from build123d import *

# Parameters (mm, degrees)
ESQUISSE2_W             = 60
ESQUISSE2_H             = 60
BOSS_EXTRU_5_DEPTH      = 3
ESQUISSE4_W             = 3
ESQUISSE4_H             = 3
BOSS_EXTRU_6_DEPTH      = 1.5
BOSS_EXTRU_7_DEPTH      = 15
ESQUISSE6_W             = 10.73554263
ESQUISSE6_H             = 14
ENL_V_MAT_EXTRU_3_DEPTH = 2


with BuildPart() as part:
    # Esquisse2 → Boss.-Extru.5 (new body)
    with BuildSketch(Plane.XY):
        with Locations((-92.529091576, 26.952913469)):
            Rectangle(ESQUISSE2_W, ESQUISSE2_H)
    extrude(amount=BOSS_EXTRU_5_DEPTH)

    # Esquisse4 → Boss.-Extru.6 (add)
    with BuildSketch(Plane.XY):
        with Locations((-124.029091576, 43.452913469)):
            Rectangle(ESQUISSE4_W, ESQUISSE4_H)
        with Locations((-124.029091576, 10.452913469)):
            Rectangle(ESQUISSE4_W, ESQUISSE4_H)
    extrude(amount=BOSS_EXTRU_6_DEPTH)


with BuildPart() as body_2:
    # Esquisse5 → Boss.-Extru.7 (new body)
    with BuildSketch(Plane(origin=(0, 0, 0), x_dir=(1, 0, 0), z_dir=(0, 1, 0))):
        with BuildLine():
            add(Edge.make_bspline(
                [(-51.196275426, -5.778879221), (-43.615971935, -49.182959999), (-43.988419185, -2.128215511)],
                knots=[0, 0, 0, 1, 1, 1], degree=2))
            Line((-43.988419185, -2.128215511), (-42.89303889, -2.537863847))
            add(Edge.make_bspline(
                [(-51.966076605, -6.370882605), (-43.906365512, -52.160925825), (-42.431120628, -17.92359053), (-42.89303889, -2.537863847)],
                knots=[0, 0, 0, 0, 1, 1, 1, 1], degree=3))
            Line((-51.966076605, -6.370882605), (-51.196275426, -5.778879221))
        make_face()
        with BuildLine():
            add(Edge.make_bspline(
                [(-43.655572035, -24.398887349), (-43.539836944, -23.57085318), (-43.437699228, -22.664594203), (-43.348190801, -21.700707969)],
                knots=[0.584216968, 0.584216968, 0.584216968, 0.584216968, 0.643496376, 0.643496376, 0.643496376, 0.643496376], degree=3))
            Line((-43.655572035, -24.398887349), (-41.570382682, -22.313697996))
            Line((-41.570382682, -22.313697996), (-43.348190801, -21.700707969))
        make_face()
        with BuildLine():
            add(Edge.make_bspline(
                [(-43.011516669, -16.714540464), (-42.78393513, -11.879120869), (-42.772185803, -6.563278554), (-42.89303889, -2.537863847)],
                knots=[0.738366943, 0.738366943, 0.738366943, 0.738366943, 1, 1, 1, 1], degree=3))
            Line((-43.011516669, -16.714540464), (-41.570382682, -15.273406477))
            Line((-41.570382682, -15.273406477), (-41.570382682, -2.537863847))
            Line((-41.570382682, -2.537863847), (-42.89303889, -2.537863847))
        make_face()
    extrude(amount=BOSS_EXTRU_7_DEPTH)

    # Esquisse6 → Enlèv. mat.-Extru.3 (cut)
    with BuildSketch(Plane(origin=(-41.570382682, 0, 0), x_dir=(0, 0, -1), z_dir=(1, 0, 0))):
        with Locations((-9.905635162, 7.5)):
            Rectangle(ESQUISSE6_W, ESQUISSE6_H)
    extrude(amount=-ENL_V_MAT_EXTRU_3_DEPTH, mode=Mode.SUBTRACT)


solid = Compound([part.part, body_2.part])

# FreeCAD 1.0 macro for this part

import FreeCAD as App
import Part
import Sketcher
from FreeCAD import Vector
Q = App.Units.Quantity

doc = App.newDocument("Part")
body = doc.addObject("PartDesign::Body", "Body")

# Sketch on XY plane
sketch1 = body.newObject("Sketcher::SketchObject", "Sketch")
sketch1.AttachmentSupport = (doc.getObject("XY_Plane"), [""])
sketch1.MapMode = "FlatFace"
sketch1.addGeometry(Part.LineSegment(Vector(-122.529092, 56.952913, 0), Vector(-122.529092, -3.047087, 0)), False)
sketch1.addGeometry(Part.LineSegment(Vector(-122.529092, -3.047087, 0), Vector(-62.529092, -3.047087, 0)), False)
sketch1.addGeometry(Part.LineSegment(Vector(-62.529092, -3.047087, 0), Vector(-62.529092, 56.952913, 0)), False)
sketch1.addGeometry(Part.LineSegment(Vector(-62.529092, 56.952913, 0), Vector(-122.529092, 56.952913, 0)), False)
sketch1.addConstraint(Sketcher.Constraint("Coincident", 0, 2, 1, 1))
sketch1.addConstraint(Sketcher.Constraint("Coincident", 1, 2, 2, 1))
sketch1.addConstraint(Sketcher.Constraint("Coincident", 2, 2, 3, 1))
sketch1.addConstraint(Sketcher.Constraint("Coincident", 3, 2, 0, 1))
sketch1.addConstraint(Sketcher.Constraint("Vertical", 0))
sketch1.addConstraint(Sketcher.Constraint("Horizontal", 1))
sketch1.addConstraint(Sketcher.Constraint("Vertical", 2))
sketch1.addConstraint(Sketcher.Constraint("Horizontal", 3))
sketch1.addConstraint(Sketcher.Constraint("Equal", 3, 0))
sketch1.addConstraint(Sketcher.Constraint("DistanceX", 1, 1, 1, 2, Q("60 mm")))
sketch1.addConstraint(Sketcher.Constraint("DistanceX", 0, 2, -1, 1, Q("122.529092 mm")))
sketch1.addConstraint(Sketcher.Constraint("DistanceY", 0, 2, -1, 1, Q("3.047087 mm")))
pad1 = body.newObject("PartDesign::Pad", "Pad")
pad1.Profile = sketch1
pad1.Length = 3

# Sketch on XY plane
sketch2 = body.newObject("Sketcher::SketchObject", "Sketch001")
sketch2.AttachmentSupport = (doc.getObject("XY_Plane"), [""])
sketch2.MapMode = "FlatFace"
sketch2.addGeometry(Part.LineSegment(Vector(-125.529092, 44.952913, 0), Vector(-125.529092, 41.952913, 0)), False)
sketch2.addGeometry(Part.LineSegment(Vector(-125.529092, 41.952913, 0), Vector(-122.529092, 41.952913, 0)), False)
sketch2.addGeometry(Part.LineSegment(Vector(-122.529092, 41.952913, 0), Vector(-122.529092, 44.952913, 0)), False)
sketch2.addGeometry(Part.LineSegment(Vector(-122.529092, 44.952913, 0), Vector(-125.529092, 44.952913, 0)), False)
sketch2.addGeometry(Part.LineSegment(Vector(-125.529092, 11.952913, 0), Vector(-125.529092, 8.952913, 0)), False)
sketch2.addGeometry(Part.LineSegment(Vector(-125.529092, 8.952913, 0), Vector(-122.529092, 8.952913, 0)), False)
sketch2.addGeometry(Part.LineSegment(Vector(-122.529092, 8.952913, 0), Vector(-122.529092, 11.952913, 0)), False)
sketch2.addGeometry(Part.LineSegment(Vector(-122.529092, 11.952913, 0), Vector(-125.529092, 11.952913, 0)), False)
sketch2.addConstraint(Sketcher.Constraint("Coincident", 0, 2, 1, 1))
sketch2.addConstraint(Sketcher.Constraint("Coincident", 1, 2, 2, 1))
sketch2.addConstraint(Sketcher.Constraint("Coincident", 2, 2, 3, 1))
sketch2.addConstraint(Sketcher.Constraint("Coincident", 3, 2, 0, 1))
sketch2.addConstraint(Sketcher.Constraint("Coincident", 4, 2, 5, 1))
sketch2.addConstraint(Sketcher.Constraint("Coincident", 5, 2, 6, 1))
sketch2.addConstraint(Sketcher.Constraint("Coincident", 6, 2, 7, 1))
sketch2.addConstraint(Sketcher.Constraint("Coincident", 7, 2, 4, 1))
sketch2.addConstraint(Sketcher.Constraint("Vertical", 0))
sketch2.addConstraint(Sketcher.Constraint("Horizontal", 1))
sketch2.addConstraint(Sketcher.Constraint("Vertical", 2))
sketch2.addConstraint(Sketcher.Constraint("Horizontal", 3))
sketch2.addConstraint(Sketcher.Constraint("Vertical", 4))
sketch2.addConstraint(Sketcher.Constraint("Horizontal", 5))
sketch2.addConstraint(Sketcher.Constraint("Vertical", 6))
sketch2.addConstraint(Sketcher.Constraint("Horizontal", 7))
sketch2.addConstraint(Sketcher.Constraint("Vertical", 3, 2, 4, 2))
sketch2.addConstraint(Sketcher.Constraint("Vertical", 2, 2, 5, 2))
sketch2.addConstraint(Sketcher.Constraint("Equal", 7, 0))
sketch2.addConstraint(Sketcher.Constraint("Equal", 2, 4))
sketch2.addConstraint(Sketcher.Constraint("DistanceX", 1, 1, 1, 2, Q("3 mm")))
sketch2.addConstraint(Sketcher.Constraint("DistanceY", 4, 2, 0, 2, Q("33 mm")))
sketch2.addConstraint(Sketcher.Constraint("DistanceX", 0, 2, -1, 1, Q("125.529092 mm")))
sketch2.addConstraint(Sketcher.Constraint("DistanceY", -1, 1, 0, 2, Q("41.952913 mm")))
pad2 = body.newObject("PartDesign::Pad", "Pad001")
pad2.Profile = sketch2
pad2.Length = 1.5
body2 = doc.addObject("PartDesign::Body", "Body001")

# Sketch on XZ plane
sketch3 = body2.newObject("Sketcher::SketchObject", "Sketch002")
sketch3.AttachmentSupport = (doc.getObject("XZ_Plane001"), [""])
sketch3.MapMode = "FlatFace"
sketch3.addGeometry(Part.BSplineCurve([Vector(-51.196275, 5.778879, 0), Vector(-43.615972, 49.18296, 0), Vector(-43.988419, 2.128216, 0)], [3, 3], [0, 1], False, 2, [1, 1, 1], False), False)
sketch3.addGeometry(Part.LineSegment(Vector(-51.196275, 5.778879, 0), Vector(-51.966077, 6.370883, 0)), False)
sketch3.addGeometry(Part.BSplineCurve([Vector(-51.966077, 6.370883, 0), Vector(-47.257457, 33.122203, 0), Vector(-44.796177, 32.559421, 0), Vector(-43.655572, 24.398887, 0)], [4, 4], [0, 0.584216968], False, 3, [1, 1, 1, 1], False), False)
sketch3.addGeometry(Part.LineSegment(Vector(-43.655572, 24.398887, 0), Vector(-41.570383, 22.313698, 0)), False)
sketch3.addGeometry(Part.LineSegment(Vector(-41.570383, 22.313698, 0), Vector(-43.348191, 21.700708, 0)), False)
sketch3.addGeometry(Part.BSplineCurve([Vector(-43.348191, 21.700708, 0), Vector(-43.204942, 20.158108, 0), Vector(-43.09404, 18.467908, 0), Vector(-43.011517, 16.71454, 0)], [4, 4], [0.643496376, 0.738366943], False, 3, [1, 1, 1, 1], False), False)
sketch3.addGeometry(Part.LineSegment(Vector(-43.011517, 16.71454, 0), Vector(-41.570383, 15.273406, 0)), False)
sketch3.addGeometry(Part.LineSegment(Vector(-41.570383, 15.273406, 0), Vector(-41.570383, 2.537864, 0)), False)
sketch3.addGeometry(Part.LineSegment(Vector(-41.570383, 2.537864, 0), Vector(-42.893039, 2.537864, 0)), False)
sketch3.addGeometry(Part.LineSegment(Vector(-42.893039, 2.537864, 0), Vector(-43.988419, 2.128216, 0)), False)
sketch3.addConstraint(Sketcher.Constraint("Block", 0))
sketch3.addConstraint(Sketcher.Constraint("Block", 2))
sketch3.addConstraint(Sketcher.Constraint("Block", 5))
sketch3.addConstraint(Sketcher.Constraint("Coincident", 0, 1, 1, 1))
sketch3.addConstraint(Sketcher.Constraint("Coincident", 1, 2, 2, 1))
sketch3.addConstraint(Sketcher.Constraint("Coincident", 2, 2, 3, 1))
sketch3.addConstraint(Sketcher.Constraint("Coincident", 3, 2, 4, 1))
sketch3.addConstraint(Sketcher.Constraint("Coincident", 4, 2, 5, 1))
sketch3.addConstraint(Sketcher.Constraint("Coincident", 5, 2, 6, 1))
sketch3.addConstraint(Sketcher.Constraint("Coincident", 6, 2, 7, 1))
sketch3.addConstraint(Sketcher.Constraint("Coincident", 7, 2, 8, 1))
sketch3.addConstraint(Sketcher.Constraint("Coincident", 8, 2, 9, 1))
sketch3.addConstraint(Sketcher.Constraint("Coincident", 9, 2, 0, 2))
sketch3.addConstraint(Sketcher.Constraint("Vertical", 7))
sketch3.addConstraint(Sketcher.Constraint("Horizontal", 8))
sketch3.addConstraint(Sketcher.Constraint("Parallel", 3, 6))
sketch3.addConstraint(Sketcher.Constraint("Vertical", 3, 2, 6, 2))
sketch3.addConstraint(Sketcher.Constraint("Angle", 3, Q("-45 deg")))
sketch3.addConstraint(Sketcher.Constraint("DistanceY", 6, 2, 4, 2, Q("6.427301 mm")))
sketch3.addConstraint(Sketcher.Constraint("DistanceX", 8, 2, 8, 1, Q("1.322656 mm")))
sketch3.addConstraint(Sketcher.Constraint("DistanceY", 7, 2, 7, 1, Q("12.735543 mm")))
pad3 = body2.newObject("PartDesign::Pad", "Pad002")
pad3.Profile = sketch3
pad3.Length = 15
pad3.Reversed = True

# Sketch on YZ plane
sketch4 = body2.newObject("Sketcher::SketchObject", "Sketch003")
sketch4.AttachmentSupport = (doc.getObject("YZ_Plane001"), [""])
sketch4.MapMode = "FlatFace"
sketch4.AttachmentOffset = App.Placement(Vector(0, 0, -41.570383), App.Rotation())
sketch4.addGeometry(Part.LineSegment(Vector(14.5, 15.273406, 0), Vector(0.5, 15.273406, 0)), False)
sketch4.addGeometry(Part.LineSegment(Vector(0.5, 15.273406, 0), Vector(0.5, 4.537864, 0)), False)
sketch4.addGeometry(Part.LineSegment(Vector(0.5, 4.537864, 0), Vector(14.5, 4.537864, 0)), False)
sketch4.addGeometry(Part.LineSegment(Vector(14.5, 4.537864, 0), Vector(14.5, 15.273406, 0)), False)
sketch4.addConstraint(Sketcher.Constraint("Coincident", 0, 2, 1, 1))
sketch4.addConstraint(Sketcher.Constraint("Coincident", 1, 2, 2, 1))
sketch4.addConstraint(Sketcher.Constraint("Coincident", 2, 2, 3, 1))
sketch4.addConstraint(Sketcher.Constraint("Coincident", 3, 2, 0, 1))
sketch4.addConstraint(Sketcher.Constraint("Horizontal", 0))
sketch4.addConstraint(Sketcher.Constraint("Vertical", 1))
sketch4.addConstraint(Sketcher.Constraint("Horizontal", 2))
sketch4.addConstraint(Sketcher.Constraint("Vertical", 3))
sketch4.addConstraint(Sketcher.Constraint("DistanceX", 0, 2, 0, 1, Q("14 mm")))
sketch4.addConstraint(Sketcher.Constraint("DistanceX", -1, 1, 0, 2, Q("0.5 mm")))
sketch4.addConstraint(Sketcher.Constraint("DistanceY", 1, 2, 1, 1, Q("10.735543 mm")))
sketch4.addConstraint(Sketcher.Constraint("DistanceY", -1, 1, 0, 2, Q("15.273406 mm")))
pocket1 = body2.newObject("PartDesign::Pocket", "Pocket")
pocket1.Profile = sketch4
pocket1.Length = 2

doc.recompute()
